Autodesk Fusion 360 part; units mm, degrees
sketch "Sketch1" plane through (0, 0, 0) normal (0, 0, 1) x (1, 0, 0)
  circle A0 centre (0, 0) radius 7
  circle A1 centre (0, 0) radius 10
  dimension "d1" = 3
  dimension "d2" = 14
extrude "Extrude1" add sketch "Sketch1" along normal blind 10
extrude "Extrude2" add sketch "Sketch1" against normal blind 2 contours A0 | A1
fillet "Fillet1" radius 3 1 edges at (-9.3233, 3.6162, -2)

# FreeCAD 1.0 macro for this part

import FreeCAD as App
import Part
import Sketcher


def edges_at(feature, points):
    """Names of the edges that pass closest to the given points."""
    edges = feature.Shape.Edges
    near = lambda p: min(range(len(edges)), key=lambda i: edges[i].distToShape(Part.Vertex(*p))[0])
    return sorted({f"Edge{near(p) + 1}" for p in points})

doc = App.newDocument("Part")
params = doc.addObject("Spreadsheet::Sheet", "Params")
for row, (alias, value) in enumerate([
    ("sketch1_diameter", "14 mm"),
    ("sketch1_diameter2", "20 mm"),
    ("pad1_length", "10 mm"),
    ("sketch2_diameter", "20 mm"),
    ("pad2_length", "2 mm"),
    ("fillet_radius", "3 mm"),
], start=1):
    params.set(f"A{row}", alias)
    params.set(f"B{row}", "=" + value)
    params.setAlias(f"B{row}", alias)

body = doc.addObject("PartDesign::Body", "Body")

# Sketch on XY plane
sketch1 = body.newObject("Sketcher::SketchObject", "Sketch")
sketch1.AttachmentSupport = (doc.getObject("XY_Plane"), [""])
sketch1.MapMode = "FlatFace"
sketch1.addGeometry([
    Part.Circle(App.Vector(0, 0, 0), App.Vector(0, 0, 1), 10),
    Part.Circle(App.Vector(0, 0, 0), App.Vector(0, 0, 1), 7),
], False)
sketch1.addConstraint([
    Sketcher.Constraint("Coincident", 0, 3, -1, 1),
    Sketcher.Constraint("Coincident", 1, 3, -1, 1),
    Sketcher.Constraint("Diameter", 1, 14.0),
    Sketcher.Constraint("Diameter", 0, 20.0),
])
sketch1.setExpression("Constraints[2]", "Params.sketch1_diameter")
sketch1.setExpression("Constraints[3]", "Params.sketch1_diameter2")
pad1 = body.newObject("PartDesign::Pad", "Pad")
pad1.Profile = sketch1
pad1.setExpression("Length", "Params.pad1_length")

# Sketch on XY plane
sketch2 = body.newObject("Sketcher::SketchObject", "Sketch001")
sketch2.AttachmentSupport = (doc.getObject("XY_Plane"), [""])
sketch2.MapMode = "FlatFace"
sketch2.addGeometry(Part.Circle(App.Vector(0, 0, 0), App.Vector(0, 0, 1), 10), False)
sketch2.addConstraint([
    Sketcher.Constraint("Coincident", 0, 3, -1, 1),
    Sketcher.Constraint("Diameter", 0, 20.0),
])
sketch2.setExpression("Constraints[1]", "Params.sketch2_diameter")
pad2 = body.newObject("PartDesign::Pad", "Pad001")
pad2.Profile = sketch2
pad2.setExpression("Length", "Params.pad2_length")
pad2.Reversed = True
doc.recompute()

fillet = body.newObject("PartDesign::Fillet", "Fillet")
fillet.Base = (pad2, edges_at(pad2, [(-9.323, 3.616, -2)]))
fillet.setExpression("Radius", "Params.fillet_radius")

doc.recompute()
